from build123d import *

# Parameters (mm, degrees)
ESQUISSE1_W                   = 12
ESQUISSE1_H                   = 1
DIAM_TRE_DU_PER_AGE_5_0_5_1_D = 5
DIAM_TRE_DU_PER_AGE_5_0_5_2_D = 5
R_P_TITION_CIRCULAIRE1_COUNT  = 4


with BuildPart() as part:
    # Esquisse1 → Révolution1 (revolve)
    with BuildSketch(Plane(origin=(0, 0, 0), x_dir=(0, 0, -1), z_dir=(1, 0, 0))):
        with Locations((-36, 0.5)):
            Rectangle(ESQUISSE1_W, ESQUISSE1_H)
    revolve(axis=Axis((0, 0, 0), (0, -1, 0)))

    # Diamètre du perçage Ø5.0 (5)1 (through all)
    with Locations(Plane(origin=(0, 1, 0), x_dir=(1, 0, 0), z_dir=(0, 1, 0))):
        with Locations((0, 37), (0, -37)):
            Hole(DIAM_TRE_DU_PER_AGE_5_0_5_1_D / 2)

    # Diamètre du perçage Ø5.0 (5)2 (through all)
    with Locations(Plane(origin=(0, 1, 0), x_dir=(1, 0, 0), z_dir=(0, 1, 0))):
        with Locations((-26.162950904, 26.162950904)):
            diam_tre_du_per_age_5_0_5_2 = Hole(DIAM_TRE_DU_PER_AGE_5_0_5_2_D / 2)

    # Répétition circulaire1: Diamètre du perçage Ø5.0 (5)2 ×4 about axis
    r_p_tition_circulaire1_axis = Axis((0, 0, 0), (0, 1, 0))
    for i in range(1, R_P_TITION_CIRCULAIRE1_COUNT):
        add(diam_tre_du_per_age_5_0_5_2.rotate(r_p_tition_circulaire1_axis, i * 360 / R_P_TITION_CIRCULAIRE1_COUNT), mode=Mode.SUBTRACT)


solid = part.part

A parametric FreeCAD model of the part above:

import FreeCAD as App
import Part
import Sketcher
from FreeCAD import Vector
Q = App.Units.Quantity


def add_polygon(sketch, points):
    """Adds a closed chain of lines whose ends are joined by coincident constraints."""
    first, n = sketch.GeometryCount, len(points)
    for a, b in zip(points, points[1:] + points[:1]):
        sketch.addGeometry(Part.LineSegment(App.Vector(*a, 0), App.Vector(*b, 0)), False)
    for i in range(n):
        sketch.addConstraint(Sketcher.Constraint("Coincident", first + i, 2, first + (i + 1) % n, 1))

doc = App.newDocument("Part")
params = doc.addObject("Spreadsheet::Sheet", "Params")
for row, (alias, value) in enumerate([
    ("sketch1_width", "1 mm"),
    ("sketch1_height", "12 mm"),
    ("revolution_angle", "360 deg"),
    ("sketch2_diameter", "5 mm"),
    ("hole_diameter", "5 mm"),
    ("sketch3_diameter", "5 mm"),
    ("hole2_diameter", "5 mm"),
], start=1):
    params.set(f"A{row}", alias)
    params.set(f"B{row}", "=" + value)
    params.setAlias(f"B{row}", alias)

body = doc.addObject("PartDesign::Body", "Body")

# Sketch on YZ plane
sketch1 = body.newObject("Sketcher::SketchObject", "Sketch")
sketch1.AttachmentSupport = (doc.getObject("YZ_Plane"), [""])
sketch1.MapMode = "FlatFace"
add_polygon(sketch1, [(1, 42), (0, 42), (0, 30), (1, 30)])  # lines 0-3
sketch1.addConstraint(Sketcher.Constraint("Horizontal", 0))
sketch1.addConstraint(Sketcher.Constraint("Vertical", 1))
sketch1.addConstraint(Sketcher.Constraint("Horizontal", 2))
sketch1.addConstraint(Sketcher.Constraint("Vertical", 3))
sketch1.addConstraint(Sketcher.Constraint("PointOnObject", 0, 2, -2))
sketch1.addConstraint(Sketcher.Constraint("DistanceX", 0, 2, 0, 1, Q("1 mm")))
sketch1.addConstraint(Sketcher.Constraint("DistanceY", 1, 2, 1, 1, Q("12 mm")))
sketch1.addConstraint(Sketcher.Constraint("DistanceY", -1, 1, 0, 2, Q("42 mm")))
sketch1.setExpression("Constraints[9]", "Params.sketch1_width")
sketch1.setExpression("Constraints[10]", "Params.sketch1_height")
revolution = body.newObject("PartDesign::Revolution", "Revolution")
revolution.Profile = sketch1
revolution.ReferenceAxis = (sketch1, ["H_Axis"])
revolution.setExpression("Angle", "Params.revolution_angle")

# Sketch on XZ plane
sketch2 = body.newObject("Sketcher::SketchObject", "Sketch001")
sketch2.AttachmentSupport = (doc.getObject("XZ_Plane"), [""])
sketch2.MapMode = "FlatFace"
sketch2.AttachmentOffset = App.Placement(Vector(0, 0, -1), App.Rotation())
sketch2.addGeometry(Part.Circle(Vector(0, -37, 0), Vector(0, 0, 1), 2.5), False)
sketch2.addGeometry(Part.Circle(Vector(0, 37, 0), Vector(0, 0, 1), 2.5), False)
sketch2.addConstraint(Sketcher.Constraint("Equal", 0, 1))
sketch2.addConstraint(Sketcher.Constraint("Symmetric", 0, 3, 1, 3, -1, 1))
sketch2.addConstraint(Sketcher.Constraint("PointOnObject", 0, 3, -2))
sketch2.addConstraint(Sketcher.Constraint("Diameter", 0, Q("5 mm")))
sketch2.addConstraint(Sketcher.Constraint("DistanceY", 0, 3, -1, 1, Q("37 mm")))
sketch2.setExpression("Constraints[3]", "Params.sketch2_diameter")
doc.recompute()
hole = body.newObject("PartDesign::Hole", "Hole")
hole.Profile = sketch2
hole.ThreadType = "None"
hole.setExpression("Diameter", "Params.hole_diameter")
hole.DepthType = "ThroughAll"
hole.Reversed = True

# Sketch on XZ plane
sketch3 = body.newObject("Sketcher::SketchObject", "Sketch002")
sketch3.AttachmentSupport = (doc.getObject("XZ_Plane"), [""])
sketch3.MapMode = "FlatFace"
sketch3.AttachmentOffset = App.Placement(Vector(0, 0, -1), App.Rotation())
sketch3.addGeometry(Part.Circle(Vector(-26.162951, -26.162951, 0), Vector(0, 0, 1), 2.5), False)
sketch3.addConstraint(Sketcher.Constraint("Diameter", 0, Q("5 mm")))
sketch3.addConstraint(Sketcher.Constraint("DistanceX", 0, 3, -1, 1, Q("26.162951 mm")))
sketch3.addConstraint(Sketcher.Constraint("DistanceY", 0, 3, -1, 1, Q("26.162951 mm")))
sketch3.setExpression("Constraints[0]", "Params.sketch3_diameter")
doc.recompute()
hole2 = body.newObject("PartDesign::Hole", "Hole001")
hole2.Profile = sketch3
hole2.ThreadType = "None"
hole2.setExpression("Diameter", "Params.hole2_diameter")
hole2.DepthType = "ThroughAll"
hole2.Reversed = True
doc.recompute()

polarpattern = body.newObject("PartDesign::PolarPattern", "PolarPattern")
polarpattern.Originals = [hole2]
polarpattern.Axis = (doc.getObject("Y_Axis"), [""])
polarpattern.Angle = 360
polarpattern.Occurrences = 4
body.Tip = polarpattern

doc.recompute()
